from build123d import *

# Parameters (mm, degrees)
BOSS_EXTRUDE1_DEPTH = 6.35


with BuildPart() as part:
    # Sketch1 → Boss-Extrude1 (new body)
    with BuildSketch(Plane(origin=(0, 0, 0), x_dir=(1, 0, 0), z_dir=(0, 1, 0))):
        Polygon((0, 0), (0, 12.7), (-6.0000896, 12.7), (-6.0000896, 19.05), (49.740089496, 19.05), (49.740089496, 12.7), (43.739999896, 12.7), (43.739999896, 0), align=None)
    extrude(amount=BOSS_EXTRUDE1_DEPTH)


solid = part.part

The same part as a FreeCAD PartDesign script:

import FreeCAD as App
import Part
import Sketcher

V = App.Vector
Q = App.Units.Quantity

doc = App.newDocument("Part")
body = doc.addObject("PartDesign::Body", "Body")

sketch1 = body.newObject("Sketcher::SketchObject", "Sketch")
sketch1.AttachmentSupport = (doc.getObject("XZ_Plane"), [""])
sketch1.MapMode = "FlatFace"
sketch1.addGeometry([
    Part.LineSegment(V(0, -12.7, 0), V(0, 0, 0)),
    Part.LineSegment(V(0, 0, 0), V(43.74, 0, 0)),
    Part.LineSegment(V(43.74, 0, 0), V(43.74, -12.7, 0)),
    Part.LineSegment(V(43.74, -12.7, 0), V(49.740089, -12.7, 0)),
    Part.LineSegment(V(49.740089, -12.7, 0), V(49.740089, -19.05, 0)),
    Part.LineSegment(V(49.740089, -19.05, 0), V(-6.00009, -19.05, 0)),
    Part.LineSegment(V(-6.00009, -19.05, 0), V(-6.00009, -12.7, 0)),
    Part.LineSegment(V(-6.00009, -12.7, 0), V(0, -12.7, 0)),
], False)
sketch1.addConstraint([
    Sketcher.Constraint("Coincident", 0, 2, 1, 1),
    Sketcher.Constraint("Coincident", 1, 2, 2, 1),
    Sketcher.Constraint("Coincident", 2, 2, 3, 1),
    Sketcher.Constraint("Coincident", 3, 2, 4, 1),
    Sketcher.Constraint("Coincident", 4, 2, 5, 1),
    Sketcher.Constraint("Coincident", 5, 2, 6, 1),
    Sketcher.Constraint("Coincident", 6, 2, 7, 1),
    Sketcher.Constraint("Coincident", 7, 2, 0, 1),
    Sketcher.Constraint("Vertical", 0),
    Sketcher.Constraint("Horizontal", 1),
    Sketcher.Constraint("Vertical", 2),
    Sketcher.Constraint("Horizontal", 3),
    Sketcher.Constraint("Vertical", 4),
    Sketcher.Constraint("Horizontal", 5),
    Sketcher.Constraint("Vertical", 6),
    Sketcher.Constraint("Horizontal", 7),
    Sketcher.Constraint("Coincident", 0, 2, -1, 1),
    Sketcher.Constraint("Horizontal", 3, 2, 6, 2),
    Sketcher.Constraint("Equal", 3, 7),
    Sketcher.Constraint("DistanceY", 0, 1, 0, 2, Q("0.5 in")),
    Sketcher.Constraint("DistanceY", 4, 2, 4, 1, Q("0.25 in")),
    Sketcher.Constraint("DistanceX", 1, 1, 1, 2, Q("43.74 mm")),
    Sketcher.Constraint("DistanceX", 3, 1, 3, 2, Q("6.00009 mm")),
])
pad1 = body.newObject("PartDesign::Pad", "Pad")
pad1.Profile = sketch1
pad1.Length = Q("0.25 in")
pad1.Reversed = True

doc.recompute()
